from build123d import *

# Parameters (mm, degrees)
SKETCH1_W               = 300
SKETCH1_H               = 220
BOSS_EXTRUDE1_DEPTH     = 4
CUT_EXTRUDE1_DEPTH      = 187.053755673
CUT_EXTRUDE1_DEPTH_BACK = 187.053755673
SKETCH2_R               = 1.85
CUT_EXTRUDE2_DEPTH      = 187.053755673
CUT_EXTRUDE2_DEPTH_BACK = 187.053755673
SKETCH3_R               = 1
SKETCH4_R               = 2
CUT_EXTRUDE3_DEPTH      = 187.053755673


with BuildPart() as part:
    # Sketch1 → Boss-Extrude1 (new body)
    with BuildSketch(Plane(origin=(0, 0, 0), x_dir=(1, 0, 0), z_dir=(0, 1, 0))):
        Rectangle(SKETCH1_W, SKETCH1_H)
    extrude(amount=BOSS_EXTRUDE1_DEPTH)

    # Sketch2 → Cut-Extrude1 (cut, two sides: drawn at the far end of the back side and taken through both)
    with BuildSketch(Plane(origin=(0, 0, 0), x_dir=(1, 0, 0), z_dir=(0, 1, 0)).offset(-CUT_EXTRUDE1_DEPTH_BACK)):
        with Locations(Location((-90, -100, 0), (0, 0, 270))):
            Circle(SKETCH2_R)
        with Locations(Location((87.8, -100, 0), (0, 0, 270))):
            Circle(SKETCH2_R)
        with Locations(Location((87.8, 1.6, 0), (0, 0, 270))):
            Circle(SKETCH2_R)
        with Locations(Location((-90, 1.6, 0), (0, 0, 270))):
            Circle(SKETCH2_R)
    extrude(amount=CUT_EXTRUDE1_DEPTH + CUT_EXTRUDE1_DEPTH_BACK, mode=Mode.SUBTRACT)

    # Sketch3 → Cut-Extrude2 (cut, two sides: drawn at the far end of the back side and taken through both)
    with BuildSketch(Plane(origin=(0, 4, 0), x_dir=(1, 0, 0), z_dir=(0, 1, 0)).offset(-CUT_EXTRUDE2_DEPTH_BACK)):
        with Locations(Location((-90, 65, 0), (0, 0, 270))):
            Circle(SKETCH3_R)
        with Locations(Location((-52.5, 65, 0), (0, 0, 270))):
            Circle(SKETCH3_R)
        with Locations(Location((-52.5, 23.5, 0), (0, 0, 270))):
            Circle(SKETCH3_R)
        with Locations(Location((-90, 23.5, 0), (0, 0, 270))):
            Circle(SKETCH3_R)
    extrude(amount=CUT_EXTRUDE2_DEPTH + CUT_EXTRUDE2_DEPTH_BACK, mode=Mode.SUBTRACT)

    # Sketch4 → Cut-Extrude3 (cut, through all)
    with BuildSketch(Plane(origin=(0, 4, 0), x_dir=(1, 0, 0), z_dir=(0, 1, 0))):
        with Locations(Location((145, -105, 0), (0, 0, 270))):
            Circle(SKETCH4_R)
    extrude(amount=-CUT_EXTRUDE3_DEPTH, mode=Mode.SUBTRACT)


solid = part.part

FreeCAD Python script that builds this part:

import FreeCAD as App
import Part
import Sketcher
from FreeCAD import Vector
Q = App.Units.Quantity

doc = App.newDocument("Part")
params = doc.addObject("Spreadsheet::Sheet", "Params")
for row, (alias, value) in enumerate([
    ("sketch1_width", "300 mm"),
    ("sketch1_height", "220 mm"),
    ("pad1_length", "4 mm"),
    ("sketch2_diameter", "3.7 mm"),
    ("sketch3_diameter", "2 mm"),
    ("sketch4_diameter", "4 mm"),
], start=1):
    params.set(f"A{row}", alias)
    params.set(f"B{row}", "=" + value)
    params.setAlias(f"B{row}", alias)

body = doc.addObject("PartDesign::Body", "Body")

# Sketch on XZ plane
sketch1 = body.newObject("Sketcher::SketchObject", "Sketch")
sketch1.AttachmentSupport = (doc.getObject("XZ_Plane"), [""])
sketch1.MapMode = "FlatFace"
sketch1.addGeometry([
    Part.LineSegment(Vector(-150, -110, 0), Vector(-150, 110, 0)),
    Part.LineSegment(Vector(-150, 110, 0), Vector(150, 110, 0)),
    Part.LineSegment(Vector(150, 110, 0), Vector(150, -110, 0)),
    Part.LineSegment(Vector(150, -110, 0), Vector(-150, -110, 0)),
], False)
sketch1.addConstraint([
    Sketcher.Constraint("Coincident", 0, 2, 1, 1),
    Sketcher.Constraint("Coincident", 1, 2, 2, 1),
    Sketcher.Constraint("Coincident", 2, 2, 3, 1),
    Sketcher.Constraint("Coincident", 3, 2, 0, 1),
    Sketcher.Constraint("Vertical", 0),
    Sketcher.Constraint("Horizontal", 1),
    Sketcher.Constraint("Vertical", 2),
    Sketcher.Constraint("Horizontal", 3),
    Sketcher.Constraint("Symmetric", 0, 2, 2, 2, -1, 1),
    Sketcher.Constraint("DistanceX", 1, 1, 1, 2, Q("300 mm")),
    Sketcher.Constraint("DistanceY", 0, 1, 0, 2, Q("220 mm")),
])
sketch1.setExpression("Constraints[9]", "Params.sketch1_width")
sketch1.setExpression("Constraints[10]", "Params.sketch1_height")
pad1 = body.newObject("PartDesign::Pad", "Pad")
pad1.Profile = sketch1
pad1.setExpression("Length", "Params.pad1_length")
pad1.Reversed = True

# Sketch on XZ plane
sketch2 = body.newObject("Sketcher::SketchObject", "Sketch001")
sketch2.AttachmentSupport = (doc.getObject("XZ_Plane"), [""])
sketch2.MapMode = "FlatFace"
sketch2.addGeometry([
    Part.Circle(Vector(-90, 100, 0), Vector(0, 0, 1), 1.9),
    Part.Circle(Vector(87.8, 100, 0), Vector(0, 0, 1), 1.9),
    Part.Circle(Vector(87.8, -1.6, 0), Vector(0, 0, 1), 1.9),
    Part.Circle(Vector(-90, -1.6, 0), Vector(0, 0, 1), 1.9),
], False)
sketch2.addConstraint([
    Sketcher.Constraint("Equal", 0, 1),
    Sketcher.Constraint("Equal", 1, 2),
    Sketcher.Constraint("Equal", 2, 3),
    Sketcher.Constraint("Horizontal", 0, 3, 1, 3),
    Sketcher.Constraint("Horizontal", 2, 3, 3, 3),
    Sketcher.Constraint("Vertical", 1, 3, 2, 3),
    Sketcher.Constraint("Vertical", 0, 3, 3, 3),
    Sketcher.Constraint("Diameter", 0, Q("3.7 mm")),
    Sketcher.Constraint("DistanceX", 0, 3, -1, 1, Q("90 mm")),
    Sketcher.Constraint("DistanceY", -1, 1, 0, 3, Q("100 mm")),
    Sketcher.Constraint("DistanceX", -1, 1, 1, 3, Q("87.8 mm")),
    Sketcher.Constraint("DistanceY", 2, 3, -1, 1, Q("1.6 mm")),
])
sketch2.setExpression("Constraints[7]", "Params.sketch2_diameter")
pocket1 = body.newObject("PartDesign::Pocket", "Pocket")
pocket1.Profile = sketch2
pocket1.Type = "ThroughAll"
pocket1.Midplane = True

# Sketch on XZ plane
sketch3 = body.newObject("Sketcher::SketchObject", "Sketch002")
sketch3.AttachmentSupport = (doc.getObject("XZ_Plane"), [""])
sketch3.MapMode = "FlatFace"
sketch3.AttachmentOffset = App.Placement(Vector(0, 0, -4), App.Rotation())
sketch3.addGeometry([
    Part.Circle(Vector(-90, -65, 0), Vector(0, 0, 1), 1),
    Part.Circle(Vector(-52.5, -65, 0), Vector(0, 0, 1), 1),
    Part.Circle(Vector(-52.5, -23.5, 0), Vector(0, 0, 1), 1),
    Part.Circle(Vector(-90, -23.5, 0), Vector(0, 0, 1), 1),
], False)
sketch3.addConstraint([
    Sketcher.Constraint("Equal", 0, 1),
    Sketcher.Constraint("Equal", 1, 2),
    Sketcher.Constraint("Equal", 2, 3),
    Sketcher.Constraint("Horizontal", 0, 3, 1, 3),
    Sketcher.Constraint("Horizontal", 2, 3, 3, 3),
    Sketcher.Constraint("Vertical", 1, 3, 2, 3),
    Sketcher.Constraint("Vertical", 0, 3, 3, 3),
    Sketcher.Constraint("Diameter", 0, Q("2 mm")),
    Sketcher.Constraint("DistanceX", 0, 3, -1, 1, Q("90 mm")),
    Sketcher.Constraint("DistanceY", 0, 3, -1, 1, Q("65 mm")),
    Sketcher.Constraint("DistanceX", 1, 3, -1, 1, Q("52.5 mm")),
    Sketcher.Constraint("DistanceY", 2, 3, -1, 1, Q("23.5 mm")),
])
sketch3.setExpression("Constraints[7]", "Params.sketch3_diameter")
pocket2 = body.newObject("PartDesign::Pocket", "Pocket001")
pocket2.Profile = sketch3
pocket2.Type = "ThroughAll"
pocket2.Midplane = True

# Sketch on XZ plane
sketch4 = body.newObject("Sketcher::SketchObject", "Sketch003")
sketch4.AttachmentSupport = (doc.getObject("XZ_Plane"), [""])
sketch4.MapMode = "FlatFace"
sketch4.AttachmentOffset = App.Placement(Vector(0, 0, -4), App.Rotation())
sketch4.addGeometry(Part.Circle(Vector(145, 105, 0), Vector(0, 0, 1), 2), False)
sketch4.addConstraint([
    Sketcher.Constraint("Diameter", 0, Q("4 mm")),
    Sketcher.Constraint("DistanceX", -1, 1, 0, 3, Q("145 mm")),
    Sketcher.Constraint("DistanceY", -1, 1, 0, 3, Q("105 mm")),
])
sketch4.setExpression("Constraints[0]", "Params.sketch4_diameter")
pocket3 = body.newObject("PartDesign::Pocket", "Pocket002")
pocket3.Profile = sketch4
pocket3.Type = "ThroughAll"
pocket3.Reversed = True

doc.recompute()
